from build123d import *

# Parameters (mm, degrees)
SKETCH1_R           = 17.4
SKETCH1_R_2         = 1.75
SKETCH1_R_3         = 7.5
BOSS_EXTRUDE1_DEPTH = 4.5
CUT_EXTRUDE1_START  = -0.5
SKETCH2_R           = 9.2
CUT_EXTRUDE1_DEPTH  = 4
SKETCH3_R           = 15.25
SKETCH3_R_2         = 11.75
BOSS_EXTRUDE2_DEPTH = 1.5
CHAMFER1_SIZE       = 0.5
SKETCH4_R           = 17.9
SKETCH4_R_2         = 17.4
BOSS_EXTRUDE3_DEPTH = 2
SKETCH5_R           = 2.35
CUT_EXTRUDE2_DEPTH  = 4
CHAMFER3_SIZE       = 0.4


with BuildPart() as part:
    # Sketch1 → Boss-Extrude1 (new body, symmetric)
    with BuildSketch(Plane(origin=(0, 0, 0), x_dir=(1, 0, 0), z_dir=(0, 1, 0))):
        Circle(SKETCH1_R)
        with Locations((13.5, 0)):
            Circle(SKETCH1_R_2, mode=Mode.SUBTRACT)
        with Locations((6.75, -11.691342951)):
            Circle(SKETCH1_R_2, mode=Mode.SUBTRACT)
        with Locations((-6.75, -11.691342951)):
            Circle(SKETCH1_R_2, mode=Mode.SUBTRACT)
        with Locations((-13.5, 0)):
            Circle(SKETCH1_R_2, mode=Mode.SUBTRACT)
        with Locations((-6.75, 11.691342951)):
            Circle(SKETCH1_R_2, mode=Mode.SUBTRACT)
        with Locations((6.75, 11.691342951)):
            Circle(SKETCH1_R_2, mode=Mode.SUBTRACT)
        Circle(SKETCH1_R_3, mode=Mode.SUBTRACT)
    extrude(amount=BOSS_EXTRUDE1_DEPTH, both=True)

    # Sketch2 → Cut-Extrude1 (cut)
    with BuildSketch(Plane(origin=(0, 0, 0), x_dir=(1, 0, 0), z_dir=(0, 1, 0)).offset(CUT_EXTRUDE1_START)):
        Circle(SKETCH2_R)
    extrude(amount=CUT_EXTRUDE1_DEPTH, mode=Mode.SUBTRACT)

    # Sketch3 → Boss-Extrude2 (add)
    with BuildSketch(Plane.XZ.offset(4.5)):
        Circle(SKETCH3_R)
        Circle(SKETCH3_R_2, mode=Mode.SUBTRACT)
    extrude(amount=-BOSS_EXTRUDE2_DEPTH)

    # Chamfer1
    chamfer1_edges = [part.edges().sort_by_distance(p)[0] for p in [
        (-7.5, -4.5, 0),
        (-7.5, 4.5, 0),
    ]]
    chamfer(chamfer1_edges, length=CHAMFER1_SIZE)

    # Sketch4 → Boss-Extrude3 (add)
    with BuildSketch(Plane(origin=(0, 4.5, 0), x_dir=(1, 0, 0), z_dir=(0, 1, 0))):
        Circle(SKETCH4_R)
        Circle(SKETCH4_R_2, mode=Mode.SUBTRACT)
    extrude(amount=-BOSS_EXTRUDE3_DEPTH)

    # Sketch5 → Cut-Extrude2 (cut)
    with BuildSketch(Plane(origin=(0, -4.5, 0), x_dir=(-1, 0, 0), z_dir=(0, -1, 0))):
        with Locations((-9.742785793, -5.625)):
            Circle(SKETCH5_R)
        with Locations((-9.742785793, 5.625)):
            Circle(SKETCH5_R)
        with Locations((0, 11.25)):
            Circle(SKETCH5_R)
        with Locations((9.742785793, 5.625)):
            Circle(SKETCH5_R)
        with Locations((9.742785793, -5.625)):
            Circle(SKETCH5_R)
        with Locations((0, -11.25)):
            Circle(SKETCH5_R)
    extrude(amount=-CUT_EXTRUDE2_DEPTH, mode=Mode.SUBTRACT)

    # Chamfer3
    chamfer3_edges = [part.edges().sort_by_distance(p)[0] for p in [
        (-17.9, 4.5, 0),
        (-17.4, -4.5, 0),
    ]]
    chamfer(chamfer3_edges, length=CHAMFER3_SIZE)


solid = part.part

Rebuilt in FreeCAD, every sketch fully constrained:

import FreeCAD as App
import Part
import Sketcher

V = App.Vector


def edges_at(feature, points):
    """Names of the edges that pass closest to the given points."""
    edges = feature.Shape.Edges
    near = lambda p: min(range(len(edges)), key=lambda i: edges[i].distToShape(Part.Vertex(*p))[0])
    return sorted({f"Edge{near(p) + 1}" for p in points})

doc = App.newDocument("Part")
body = doc.addObject("PartDesign::Body", "Body")

sketch1 = body.newObject("Sketcher::SketchObject", "Sketch")
sketch1.AttachmentSupport = (doc.getObject("XZ_Plane"), [""])
sketch1.MapMode = "FlatFace"
sketch1.addGeometry([
    Part.Circle(V(0, 0, 0), V(0, 0, 1), 17.4),
    Part.Circle(V(-6.8, 11.7, 0), V(0, 0, 1), 1.8),
    Part.Circle(V(6.8, 11.7, 0), V(0, 0, 1), 1.8),
    Part.Circle(V(-13.5, 0, 0), V(0, 0, 1), 1.8),
    Part.Circle(V(-6.8, -11.7, 0), V(0, 0, 1), 1.8),
    Part.Circle(V(0, 0, 0), V(0, 0, 1), 7.5),
    Part.Circle(V(13.5, 0, 0), V(0, 0, 1), 1.8),
    Part.Circle(V(6.8, -11.7, 0), V(0, 0, 1), 1.8),
], False)
sketch1.addConstraint([
    Sketcher.Constraint("Coincident", 0, 3, -1, 1),
    Sketcher.Constraint("Coincident", 5, 3, -1, 1),
    Sketcher.Constraint("Equal", 1, 2),
    Sketcher.Constraint("Equal", 2, 3),
    Sketcher.Constraint("Equal", 3, 4),
    Sketcher.Constraint("Equal", 4, 6),
    Sketcher.Constraint("Equal", 6, 7),
    Sketcher.Constraint("Symmetric", 2, 3, 4, 3, -1, 1),
    Sketcher.Constraint("Symmetric", 3, 3, 6, 3, -1, 1),
    Sketcher.Constraint("Symmetric", 1, 3, 7, 3, -1, 1),
    Sketcher.Constraint("Symmetric", 1, 3, 2, 3, -2),
    Sketcher.Constraint("PointOnObject", 3, 3, -1),
    Sketcher.Constraint("Diameter", 5, 15.0),
    Sketcher.Constraint("Diameter", 0, 34.8),
    Sketcher.Constraint("Diameter", 1, 3.5),
    Sketcher.Constraint("DistanceX", 3, 3, -1, 1, 13.5),
    Sketcher.Constraint("DistanceX", 1, 3, 2, 3, 13.5),
    Sketcher.Constraint("DistanceY", -1, 1, 1, 3, 11.691343),
])
pad1 = body.newObject("PartDesign::Pad", "Pad")
pad1.Profile = sketch1
pad1.Length = 9
pad1.Midplane = True

sketch2 = body.newObject("Sketcher::SketchObject", "Sketch001")
sketch2.AttachmentSupport = (doc.getObject("XZ_Plane"), [""])
sketch2.MapMode = "FlatFace"
sketch2.AttachmentOffset = App.Placement(V(0, 0, 0.5), App.Rotation())
sketch2.addGeometry(Part.Circle(V(0, 0, 0), V(0, 0, 1), 9), False)
sketch2.addConstraint([
    Sketcher.Constraint("Coincident", 0, 3, -1, 1),
    Sketcher.Constraint("Diameter", 0, 18.4),
])
pocket1 = body.newObject("PartDesign::Pocket", "Pocket")
pocket1.Profile = sketch2
pocket1.Length = 4

sketch3 = body.newObject("Sketcher::SketchObject", "Sketch002")
sketch3.AttachmentSupport = (doc.getObject("XZ_Plane"), [""])
sketch3.MapMode = "FlatFace"
sketch3.AttachmentOffset = App.Placement(V(0, 0, 4.5), App.Rotation())
sketch3.addGeometry([
    Part.Circle(V(0, 0, 0), V(0, 0, 1), 15),
    Part.Circle(V(0, 0, 0), V(0, 0, 1), 12),
], False)
sketch3.addConstraint([
    Sketcher.Constraint("Coincident", 0, 3, -1, 1),
    Sketcher.Constraint("Coincident", 1, 3, -1, 1),
    Sketcher.Constraint("Diameter", 0, 30.5),
    Sketcher.Constraint("Diameter", 1, 23.5),
])
pad2 = body.newObject("PartDesign::Pad", "Pad001")
pad2.Profile = sketch3
pad2.Length = 1.5
pad2.Reversed = True
doc.recompute()

chamfer = body.newObject("PartDesign::Chamfer", "Chamfer")
chamfer.Base = (pad2, edges_at(pad2, [(-7.5, -4.5, 0), (-7.5, 4.5, 0)]))
chamfer.Size = 0.5

sketch4 = body.newObject("Sketcher::SketchObject", "Sketch003")
sketch4.AttachmentSupport = (doc.getObject("XZ_Plane"), [""])
sketch4.MapMode = "FlatFace"
sketch4.AttachmentOffset = App.Placement(V(0, 0, -4.5), App.Rotation())
sketch4.addGeometry([
    Part.Circle(V(0, 0, 0), V(0, 0, 1), 18),
    Part.Circle(V(0, 0, 0), V(0, 0, 1), 17),
], False)
sketch4.addConstraint([
    Sketcher.Constraint("Coincident", 0, 3, -1, 1),
    Sketcher.Constraint("Coincident", 1, 3, -1, 1),
    Sketcher.Constraint("Diameter", 0, 35.8),
    Sketcher.Constraint("Diameter", 1, 34.8),
])
pad3 = body.newObject("PartDesign::Pad", "Pad002")
pad3.Profile = sketch4
pad3.Length = 2

sketch5 = body.newObject("Sketcher::SketchObject", "Sketch004")
sketch5.AttachmentSupport = (doc.getObject("XZ_Plane"), [""])
sketch5.MapMode = "FlatFace"
sketch5.AttachmentOffset = App.Placement(V(0, 0, 4.5), App.Rotation())
sketch5.addGeometry([
    Part.Circle(V(9.7, 5.6, 0), V(0, 0, 1), 2.4),
    Part.Circle(V(9.7, -5.6, 0), V(0, 0, 1), 2.4),
    Part.Circle(V(0, -11.2, 0), V(0, 0, 1), 2.4),
    Part.Circle(V(-9.7, -5.6, 0), V(0, 0, 1), 2.4),
    Part.Circle(V(-9.7, 5.6, 0), V(0, 0, 1), 2.4),
    Part.Circle(V(0, 11.2, 0), V(0, 0, 1), 2.4),
], False)
sketch5.addConstraint([
    Sketcher.Constraint("Equal", 0, 1),
    Sketcher.Constraint("Equal", 1, 2),
    Sketcher.Constraint("Equal", 2, 3),
    Sketcher.Constraint("Equal", 3, 4),
    Sketcher.Constraint("Equal", 4, 5),
    Sketcher.Constraint("Symmetric", 0, 3, 3, 3, -1, 1),
    Sketcher.Constraint("Symmetric", 1, 3, 4, 3, -1, 1),
    Sketcher.Constraint("Symmetric", 2, 3, 5, 3, -1, 1),
    Sketcher.Constraint("Symmetric", 1, 3, 3, 3, -2),
    Sketcher.Constraint("PointOnObject", 2, 3, -2),
    Sketcher.Constraint("Diameter", 0, 4.7),
    Sketcher.Constraint("DistanceY", 2, 3, 5, 3, 22.5),
    Sketcher.Constraint("DistanceY", 1, 3, 0, 3, 11.25),
    Sketcher.Constraint("DistanceX", 3, 3, 1, 3, 19.485572),
])
pocket2 = body.newObject("PartDesign::Pocket", "Pocket001")
pocket2.Profile = sketch5
pocket2.Length = 4
doc.recompute()

chamfer2 = body.newObject("PartDesign::Chamfer", "Chamfer001")
chamfer2.Base = (pocket2, edges_at(pocket2, [(-17.9, 4.5, 0), (-17.4, -4.5, 0)]))
chamfer2.Size = 0.4

doc.recompute()
